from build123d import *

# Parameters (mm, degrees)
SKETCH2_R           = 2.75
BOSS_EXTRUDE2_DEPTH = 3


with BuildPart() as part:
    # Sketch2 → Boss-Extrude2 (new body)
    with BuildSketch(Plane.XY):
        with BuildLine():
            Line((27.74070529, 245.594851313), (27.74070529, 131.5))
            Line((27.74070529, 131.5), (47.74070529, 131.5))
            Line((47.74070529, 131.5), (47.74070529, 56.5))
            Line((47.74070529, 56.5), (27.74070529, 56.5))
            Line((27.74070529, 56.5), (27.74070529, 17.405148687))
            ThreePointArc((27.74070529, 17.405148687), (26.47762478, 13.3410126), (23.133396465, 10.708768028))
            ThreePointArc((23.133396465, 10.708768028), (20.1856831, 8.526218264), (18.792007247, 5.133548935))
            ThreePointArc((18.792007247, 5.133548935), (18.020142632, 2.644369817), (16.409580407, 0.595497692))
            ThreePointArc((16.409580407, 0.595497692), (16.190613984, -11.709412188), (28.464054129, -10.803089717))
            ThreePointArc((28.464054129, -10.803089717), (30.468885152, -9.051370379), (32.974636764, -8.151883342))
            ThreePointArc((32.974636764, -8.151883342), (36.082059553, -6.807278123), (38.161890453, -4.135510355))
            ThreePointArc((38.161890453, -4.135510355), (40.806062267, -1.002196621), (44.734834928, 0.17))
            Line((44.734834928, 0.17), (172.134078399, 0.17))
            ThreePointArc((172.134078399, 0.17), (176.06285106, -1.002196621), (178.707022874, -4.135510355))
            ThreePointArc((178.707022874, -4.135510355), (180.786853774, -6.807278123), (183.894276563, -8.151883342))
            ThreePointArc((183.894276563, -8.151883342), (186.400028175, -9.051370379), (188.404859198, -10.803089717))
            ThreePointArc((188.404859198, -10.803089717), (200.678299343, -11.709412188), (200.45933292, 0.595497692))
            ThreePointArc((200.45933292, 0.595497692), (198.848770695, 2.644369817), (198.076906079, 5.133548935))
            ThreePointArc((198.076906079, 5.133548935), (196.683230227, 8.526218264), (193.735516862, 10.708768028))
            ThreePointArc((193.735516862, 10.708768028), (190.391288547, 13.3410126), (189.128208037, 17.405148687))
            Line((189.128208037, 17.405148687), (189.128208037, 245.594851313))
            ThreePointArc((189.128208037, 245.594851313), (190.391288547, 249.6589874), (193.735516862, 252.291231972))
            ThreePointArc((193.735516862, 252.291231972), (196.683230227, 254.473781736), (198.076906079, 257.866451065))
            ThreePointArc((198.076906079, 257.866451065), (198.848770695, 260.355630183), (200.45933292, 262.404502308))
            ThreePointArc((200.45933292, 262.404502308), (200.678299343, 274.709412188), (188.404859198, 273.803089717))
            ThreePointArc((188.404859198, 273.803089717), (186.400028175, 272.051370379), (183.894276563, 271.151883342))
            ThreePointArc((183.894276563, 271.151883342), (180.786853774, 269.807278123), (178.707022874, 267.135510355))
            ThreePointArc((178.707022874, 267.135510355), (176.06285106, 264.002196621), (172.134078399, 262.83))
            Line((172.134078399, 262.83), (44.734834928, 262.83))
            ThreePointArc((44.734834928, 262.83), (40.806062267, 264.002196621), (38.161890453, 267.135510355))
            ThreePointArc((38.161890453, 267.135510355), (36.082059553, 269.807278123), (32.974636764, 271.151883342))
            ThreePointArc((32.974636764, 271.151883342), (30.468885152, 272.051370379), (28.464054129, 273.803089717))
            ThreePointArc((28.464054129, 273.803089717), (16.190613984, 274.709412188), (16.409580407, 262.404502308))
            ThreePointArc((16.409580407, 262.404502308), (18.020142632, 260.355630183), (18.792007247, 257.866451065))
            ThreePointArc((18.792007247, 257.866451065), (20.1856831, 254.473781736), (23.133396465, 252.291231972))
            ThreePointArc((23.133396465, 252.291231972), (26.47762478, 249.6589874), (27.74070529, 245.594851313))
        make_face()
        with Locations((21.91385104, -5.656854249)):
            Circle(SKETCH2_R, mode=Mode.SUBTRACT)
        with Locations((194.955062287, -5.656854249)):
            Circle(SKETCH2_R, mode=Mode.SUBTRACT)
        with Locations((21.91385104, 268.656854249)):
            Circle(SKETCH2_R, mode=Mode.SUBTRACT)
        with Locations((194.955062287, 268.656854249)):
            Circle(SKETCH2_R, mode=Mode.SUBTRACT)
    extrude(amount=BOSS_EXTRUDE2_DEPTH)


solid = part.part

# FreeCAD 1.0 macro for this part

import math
import FreeCAD as App
import Part
import Sketcher
Q = App.Units.Quantity

doc = App.newDocument("Part")
body = doc.addObject("PartDesign::Body", "Body")

# Sketch on XY plane
sketch1 = doc.addObject("Sketcher::SketchObject", "Sketch")
body.addObject(sketch1)
sketch1.AttachmentSupport = (doc.XY_Plane, [""])
sketch1.MapMode = "FlatFace"
sketch1.addGeometry([
    Part.LineSegment(App.Vector(27.7, 245.6, 0), App.Vector(27.7, 131.5, 0)),  # 0
    Part.LineSegment(App.Vector(27.7, 131.5, 0), App.Vector(47.7, 131.5, 0)),  # 1
    Part.LineSegment(App.Vector(47.7, 131.5, 0), App.Vector(47.7, 56.5, 0)),  # 2
    Part.LineSegment(App.Vector(47.7, 56.5, 0), App.Vector(27.7, 56.5, 0)),  # 3
    Part.LineSegment(App.Vector(27.7, 56.5, 0), App.Vector(27.7, 17.4, 0)),  # 4
    Part.ArcOfCircle(Part.Circle(App.Vector(20.6, 17.4, 0), App.Vector(0, 0, 1), 7.2), math.radians(-69), math.radians(0)),  # 5
    Part.ArcOfCircle(Part.Circle(App.Vector(25.6, 4.3, 0), App.Vector(0, 0, 1), 6.8), math.radians(111), math.radians(173)),  # 6
    Part.ArcOfCircle(Part.Circle(App.Vector(11.7, 6, 0), App.Vector(0, 0, 1), 7.2), math.radians(-49), math.radians(-7)),  # 7
    Part.ArcOfCircle(Part.Circle(App.Vector(21.9, -5.7, 0), App.Vector(0, 0, 1), 8.3), math.radians(131), math.radians(322)),  # 8
    Part.ArcOfCircle(Part.Circle(App.Vector(34.1, -15.2, 0), App.Vector(0, 0, 1), 7.2), math.radians(99), math.radians(142)),  # 9
    Part.ArcOfCircle(Part.Circle(App.Vector(31.9, -1.4, 0), App.Vector(0, 0, 1), 6.8), math.radians(-81), math.radians(-24)),  # 10
    Part.ArcOfCircle(Part.Circle(App.Vector(44.7, -7, 0), App.Vector(0, 0, 1), 7.2), math.radians(90), math.radians(156)),  # 11
    Part.LineSegment(App.Vector(44.7, 0.2, 0), App.Vector(172.1, 0.2, 0)),  # 12
    Part.ArcOfCircle(Part.Circle(App.Vector(172.1, -7, 0), App.Vector(0, 0, 1), 7.2), math.radians(24), math.radians(90)),  # 13
    Part.ArcOfCircle(Part.Circle(App.Vector(185, -1.4, 0), App.Vector(0, 0, 1), 6.8), math.radians(-156), math.radians(-99)),  # 14
    Part.ArcOfCircle(Part.Circle(App.Vector(182.8, -15.2, 0), App.Vector(0, 0, 1), 7.2), math.radians(38), math.radians(81)),  # 15
    Part.ArcOfCircle(Part.Circle(App.Vector(195, -5.7, 0), App.Vector(0, 0, 1), 8.3), math.radians(-142), math.radians(49)),  # 16
    Part.ArcOfCircle(Part.Circle(App.Vector(205.2, 6, 0), App.Vector(0, 0, 1), 7.2), math.radians(-173), math.radians(-131)),  # 17
    Part.ArcOfCircle(Part.Circle(App.Vector(191.3, 4.3, 0), App.Vector(0, 0, 1), 6.8), math.radians(7), math.radians(69)),  # 18
    Part.ArcOfCircle(Part.Circle(App.Vector(196.3, 17.4, 0), App.Vector(0, 0, 1), 7.2), math.radians(180), math.radians(249)),  # 19
    Part.LineSegment(App.Vector(189.1, 17.4, 0), App.Vector(189.1, 245.6, 0)),  # 20
    Part.ArcOfCircle(Part.Circle(App.Vector(196.3, 245.6, 0), App.Vector(0, 0, 1), 7.2), math.radians(111), math.radians(180)),  # 21
    Part.ArcOfCircle(Part.Circle(App.Vector(191.3, 258.7, 0), App.Vector(0, 0, 1), 6.8), math.radians(-69), math.radians(-7)),  # 22
    Part.ArcOfCircle(Part.Circle(App.Vector(205.2, 257, 0), App.Vector(0, 0, 1), 7.2), math.radians(131), math.radians(173)),  # 23
    Part.ArcOfCircle(Part.Circle(App.Vector(195, 268.7, 0), App.Vector(0, 0, 1), 8.3), math.radians(-49), math.radians(142)),  # 24
    Part.ArcOfCircle(Part.Circle(App.Vector(182.8, 278.2, 0), App.Vector(0, 0, 1), 7.2), math.radians(-81), math.radians(-38)),  # 25
    Part.ArcOfCircle(Part.Circle(App.Vector(185, 264.4, 0), App.Vector(0, 0, 1), 6.8), math.radians(99), math.radians(156)),  # 26
    Part.ArcOfCircle(Part.Circle(App.Vector(172.1, 270, 0), App.Vector(0, 0, 1), 7.2), math.radians(-90), math.radians(-24)),  # 27
    Part.LineSegment(App.Vector(172.1, 262.8, 0), App.Vector(44.7, 262.8, 0)),  # 28
    Part.ArcOfCircle(Part.Circle(App.Vector(44.7, 270, 0), App.Vector(0, 0, 1), 7.2), math.radians(-156), math.radians(-90)),  # 29
    Part.ArcOfCircle(Part.Circle(App.Vector(31.9, 264.4, 0), App.Vector(0, 0, 1), 6.8), math.radians(24), math.radians(81)),  # 30
    Part.ArcOfCircle(Part.Circle(App.Vector(34.1, 278.2, 0), App.Vector(0, 0, 1), 7.2), math.radians(-142), math.radians(-99)),  # 31
    Part.ArcOfCircle(Part.Circle(App.Vector(21.9, 268.7, 0), App.Vector(0, 0, 1), 8.3), math.radians(38), math.radians(229)),  # 32
    Part.ArcOfCircle(Part.Circle(App.Vector(11.7, 257, 0), App.Vector(0, 0, 1), 7.2), math.radians(7), math.radians(49)),  # 33
    Part.ArcOfCircle(Part.Circle(App.Vector(25.6, 258.7, 0), App.Vector(0, 0, 1), 6.8), math.radians(-173), math.radians(-111)),  # 34
    Part.ArcOfCircle(Part.Circle(App.Vector(20.6, 245.6, 0), App.Vector(0, 0, 1), 7.2), math.radians(0), math.radians(69)),  # 35
    Part.Circle(App.Vector(21.9, -5.7, 0), App.Vector(0, 0, 1), 2.8),  # 36
    Part.Circle(App.Vector(195, -5.7, 0), App.Vector(0, 0, 1), 2.8),  # 37
    Part.Circle(App.Vector(21.9, 268.7, 0), App.Vector(0, 0, 1), 2.8),  # 38
    Part.Circle(App.Vector(195, 268.7, 0), App.Vector(0, 0, 1), 2.8),  # 39
], False)
sketch1.addConstraint([
    Sketcher.Constraint("Coincident", 0, 2, 1, 1),
    Sketcher.Constraint("Coincident", 1, 2, 2, 1),
    Sketcher.Constraint("Coincident", 2, 2, 3, 1),
    Sketcher.Constraint("Coincident", 3, 2, 4, 1),
    Sketcher.Constraint("Tangent", 4, 2, 5, 2),
    Sketcher.Constraint("Tangent", 5, 1, 6, 1),
    Sketcher.Constraint("Tangent", 6, 2, 7, 2),
    Sketcher.Constraint("Tangent", 7, 1, 8, 1),
    Sketcher.Constraint("Tangent", 8, 2, 9, 2),
    Sketcher.Constraint("Tangent", 9, 1, 10, 1),
    Sketcher.Constraint("Tangent", 10, 2, 11, 2),
    Sketcher.Constraint("Tangent", 11, 1, 12, 1),
    Sketcher.Constraint("Tangent", 12, 2, 13, 2),
    Sketcher.Constraint("Tangent", 13, 1, 14, 1),
    Sketcher.Constraint("Tangent", 14, 2, 15, 2),
    Sketcher.Constraint("Tangent", 15, 1, 16, 1),
    Sketcher.Constraint("Tangent", 16, 2, 17, 2),
    Sketcher.Constraint("Tangent", 17, 1, 18, 1),
    Sketcher.Constraint("Tangent", 18, 2, 19, 2),
    Sketcher.Constraint("Tangent", 19, 1, 20, 1),
    Sketcher.Constraint("Tangent", 20, 2, 21, 2),
    Sketcher.Constraint("Tangent", 21, 1, 22, 1),
    Sketcher.Constraint("Tangent", 22, 2, 23, 2),
    Sketcher.Constraint("Tangent", 23, 1, 24, 1),
    Sketcher.Constraint("Tangent", 24, 2, 25, 2),
    Sketcher.Constraint("Tangent", 25, 1, 26, 1),
    Sketcher.Constraint("Tangent", 26, 2, 27, 2),
    Sketcher.Constraint("Tangent", 27, 1, 28, 1),
    Sketcher.Constraint("Tangent", 28, 2, 29, 2),
    Sketcher.Constraint("Tangent", 29, 1, 30, 1),
    Sketcher.Constraint("Tangent", 30, 2, 31, 2),
    Sketcher.Constraint("Tangent", 31, 1, 32, 1),
    Sketcher.Constraint("Tangent", 32, 2, 33, 2),
    Sketcher.Constraint("Tangent", 33, 1, 34, 1),
    Sketcher.Constraint("Tangent", 34, 2, 35, 2),
    Sketcher.Constraint("Tangent", 35, 1, 0, 1),
    Sketcher.Constraint("Vertical", 0),
    Sketcher.Constraint("Horizontal", 1),
    Sketcher.Constraint("Vertical", 2),
    Sketcher.Constraint("Horizontal", 3),
    Sketcher.Constraint("Vertical", 4),
    Sketcher.Constraint("Horizontal", 12),
    Sketcher.Constraint("Vertical", 20),
    Sketcher.Constraint("Horizontal", 28),
    Sketcher.Constraint("Coincident", 36, 3, 8, 3),
    Sketcher.Constraint("Coincident", 37, 3, 16, 3),
    Sketcher.Constraint("Coincident", 38, 3, 32, 3),
    Sketcher.Constraint("Coincident", 39, 3, 24, 3),
    Sketcher.Constraint("Equal", 5, 7),
    Sketcher.Constraint("Equal", 7, 9),
    Sketcher.Constraint("Equal", 6, 10),
    Sketcher.Constraint("Equal", 9, 11),
    Sketcher.Constraint("Equal", 11, 13),
    Sketcher.Constraint("Equal", 10, 14),
    Sketcher.Constraint("Equal", 13, 15),
    Sketcher.Constraint("Equal", 8, 16),
    Sketcher.Constraint("Equal", 15, 17),
    Sketcher.Constraint("Equal", 14, 18),
    Sketcher.Constraint("Equal", 17, 19),
    Sketcher.Constraint("Equal", 19, 21),
    Sketcher.Constraint("Equal", 18, 22),
    Sketcher.Constraint("Equal", 21, 23),
    Sketcher.Constraint("Equal", 16, 24),
    Sketcher.Constraint("Equal", 23, 25),
    Sketcher.Constraint("Equal", 22, 26),
    Sketcher.Constraint("Equal", 25, 27),
    Sketcher.Constraint("Equal", 27, 29),
    Sketcher.Constraint("Equal", 26, 30),
    Sketcher.Constraint("Equal", 29, 31),
    Sketcher.Constraint("Equal", 24, 32),
    Sketcher.Constraint("Equal", 31, 33),
    Sketcher.Constraint("Equal", 30, 34),
    Sketcher.Constraint("Equal", 33, 35),
    Sketcher.Constraint("Equal", 36, 37),
    Sketcher.Constraint("Equal", 37, 38),
    Sketcher.Constraint("Equal", 38, 39),
    Sketcher.Constraint("Horizontal", 10, 3, 14, 3),
    Sketcher.Constraint("Horizontal", 9, 3, 15, 3),
    Sketcher.Constraint("Horizontal", 8, 3, 16, 3),
    Sketcher.Constraint("Horizontal", 7, 3, 17, 3),
    Sketcher.Constraint("Horizontal", 6, 3, 18, 3),
    Sketcher.Constraint("Horizontal", 5, 3, 19, 3),
    Sketcher.Constraint("Horizontal", 26, 3, 30, 3),
    Sketcher.Constraint("Horizontal", 25, 3, 31, 3),
    Sketcher.Constraint("Horizontal", 24, 3, 32, 3),
    Sketcher.Constraint("Horizontal", 23, 3, 33, 3),
    Sketcher.Constraint("Horizontal", 22, 3, 34, 3),
    Sketcher.Constraint("Horizontal", 21, 3, 35, 3),
    Sketcher.Constraint("Vertical", 18, 3, 22, 3),
    Sketcher.Constraint("Vertical", 17, 3, 23, 3),
    Sketcher.Constraint("Vertical", 16, 3, 24, 3),
    Sketcher.Constraint("Vertical", 15, 3, 25, 3),
    Sketcher.Constraint("Vertical", 14, 3, 26, 3),
    Sketcher.Constraint("Vertical", 13, 3, 27, 3),
    Sketcher.Constraint("Vertical", 11, 3, 29, 3),
    Sketcher.Constraint("Diameter", 36, Q("5.5 mm")),
    Sketcher.Constraint("DistanceX", 1, 1, 1, 2, Q("20 mm")),
    Sketcher.Constraint("DistanceY", 2, 2, 2, 1, Q("75 mm")),
    Sketcher.Constraint("Radius", 5, Q("7.17 mm")),
    Sketcher.Constraint("Radius", 6, Q("6.83 mm")),
    Sketcher.Constraint("Radius", 8, Q("8.33 mm")),
    Sketcher.Constraint("DistanceY", 11, 3, -1, 1, Q("7 mm")),
    Sketcher.Constraint("DistanceY", -1, 1, 27, 3, Q("270 mm")),
    Sketcher.Constraint("DistanceY", -1, 1, 0, 2, Q("131.5 mm")),
    Sketcher.Constraint("DistanceY", 0, 2, 0, 1, Q("114.094851 mm")),
    Sketcher.Constraint("DistanceX", 12, 1, 12, 2, Q("127.399243 mm")),
    Sketcher.Constraint("DistanceY", -1, 1, 6, 3, Q("4.329928 mm")),
    Sketcher.Constraint("DistanceX", -1, 1, 7, 3, Q("11.671811 mm")),
    Sketcher.Constraint("DistanceX", -1, 1, 8, 3, Q("21.913851 mm")),
    Sketcher.Constraint("DistanceX", -1, 1, 13, 3, Q("172.134078 mm")),
    Sketcher.Constraint("DistanceX", -1, 1, 14, 3, Q("184.96828 mm")),
    Sketcher.Constraint("DistanceX", -1, 1, 15, 3, Q("182.766809 mm")),
])
pad1 = doc.addObject("PartDesign::Pad", "Pad")
body.addObject(pad1)
pad1.Profile = sketch1
pad1.Length = 3

doc.recompute()
